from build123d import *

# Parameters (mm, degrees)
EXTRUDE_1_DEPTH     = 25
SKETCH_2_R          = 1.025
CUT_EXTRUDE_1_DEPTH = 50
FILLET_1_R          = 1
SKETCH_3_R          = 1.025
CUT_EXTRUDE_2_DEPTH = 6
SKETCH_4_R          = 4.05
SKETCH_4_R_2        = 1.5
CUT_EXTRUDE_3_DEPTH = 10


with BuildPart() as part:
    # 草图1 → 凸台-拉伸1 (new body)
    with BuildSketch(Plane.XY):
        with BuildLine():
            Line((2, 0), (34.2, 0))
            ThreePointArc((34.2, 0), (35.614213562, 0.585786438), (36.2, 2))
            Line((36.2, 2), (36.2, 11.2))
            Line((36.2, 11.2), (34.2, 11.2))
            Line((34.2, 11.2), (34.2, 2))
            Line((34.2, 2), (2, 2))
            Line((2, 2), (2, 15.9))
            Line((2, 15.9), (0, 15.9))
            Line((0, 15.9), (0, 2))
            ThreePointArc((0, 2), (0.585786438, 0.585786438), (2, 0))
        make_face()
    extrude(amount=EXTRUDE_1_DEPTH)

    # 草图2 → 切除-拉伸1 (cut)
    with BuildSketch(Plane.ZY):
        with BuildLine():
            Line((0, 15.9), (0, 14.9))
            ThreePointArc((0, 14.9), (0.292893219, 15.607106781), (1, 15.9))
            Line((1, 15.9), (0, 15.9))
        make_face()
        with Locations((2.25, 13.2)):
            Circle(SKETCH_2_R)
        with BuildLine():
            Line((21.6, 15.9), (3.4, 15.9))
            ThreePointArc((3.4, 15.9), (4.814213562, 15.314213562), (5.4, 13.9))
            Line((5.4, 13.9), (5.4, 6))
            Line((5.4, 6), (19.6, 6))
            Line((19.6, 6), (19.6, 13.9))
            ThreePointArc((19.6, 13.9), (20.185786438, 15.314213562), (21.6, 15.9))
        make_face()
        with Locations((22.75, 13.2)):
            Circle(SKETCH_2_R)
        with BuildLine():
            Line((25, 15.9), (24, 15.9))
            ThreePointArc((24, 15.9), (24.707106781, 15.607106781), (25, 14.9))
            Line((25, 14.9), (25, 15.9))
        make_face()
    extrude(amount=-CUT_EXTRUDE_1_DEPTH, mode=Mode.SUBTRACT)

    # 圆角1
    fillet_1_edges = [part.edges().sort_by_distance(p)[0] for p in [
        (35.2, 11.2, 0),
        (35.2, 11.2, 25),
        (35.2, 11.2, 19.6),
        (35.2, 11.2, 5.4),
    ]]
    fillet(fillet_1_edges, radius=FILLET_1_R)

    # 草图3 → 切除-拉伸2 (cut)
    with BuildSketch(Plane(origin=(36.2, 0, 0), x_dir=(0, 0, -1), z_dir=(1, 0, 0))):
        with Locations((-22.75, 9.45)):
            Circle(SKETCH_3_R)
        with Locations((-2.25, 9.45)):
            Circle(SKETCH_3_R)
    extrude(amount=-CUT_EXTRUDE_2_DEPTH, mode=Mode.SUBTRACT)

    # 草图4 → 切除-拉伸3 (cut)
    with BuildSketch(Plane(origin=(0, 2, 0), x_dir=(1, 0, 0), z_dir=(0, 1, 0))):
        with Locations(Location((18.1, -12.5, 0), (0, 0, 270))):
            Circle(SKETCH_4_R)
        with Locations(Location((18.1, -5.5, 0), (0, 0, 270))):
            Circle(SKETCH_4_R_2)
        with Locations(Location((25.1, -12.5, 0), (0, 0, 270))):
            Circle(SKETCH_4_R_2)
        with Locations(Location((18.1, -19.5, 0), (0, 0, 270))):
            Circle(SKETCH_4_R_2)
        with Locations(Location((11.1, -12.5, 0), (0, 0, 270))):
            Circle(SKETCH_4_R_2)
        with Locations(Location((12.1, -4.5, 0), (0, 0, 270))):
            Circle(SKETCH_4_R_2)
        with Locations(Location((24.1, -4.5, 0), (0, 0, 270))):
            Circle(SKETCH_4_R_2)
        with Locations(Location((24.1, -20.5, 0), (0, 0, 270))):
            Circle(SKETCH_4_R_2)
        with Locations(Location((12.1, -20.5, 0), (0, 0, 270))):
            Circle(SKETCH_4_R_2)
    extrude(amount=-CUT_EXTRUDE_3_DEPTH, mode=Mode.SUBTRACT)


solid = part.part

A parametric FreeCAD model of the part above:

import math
import FreeCAD as App
import Part
import Sketcher
from FreeCAD import Vector
Q = App.Units.Quantity


def edges_at(feature, points):
    """Names of the edges that pass closest to the given points."""
    edges = feature.Shape.Edges
    near = lambda p: min(range(len(edges)), key=lambda i: edges[i].distToShape(Part.Vertex(*p))[0])
    return sorted({f"Edge{near(p) + 1}" for p in points})

doc = App.newDocument("Part")
body = doc.addObject("PartDesign::Body", "Body")

sketch1 = doc.addObject("Sketcher::SketchObject", "Sketch")
body.addObject(sketch1)
sketch1.AttachmentSupport = (doc.XY_Plane, [""])
sketch1.MapMode = "FlatFace"
sketch1.addGeometry([
    Part.LineSegment(Vector(2, 0, 0), Vector(34.2, 0, 0)),
    Part.ArcOfCircle(Part.Circle(Vector(34.2, 2, 0), Vector(0, 0, 1), 2), math.radians(-90), math.radians(0)),
    Part.LineSegment(Vector(36.2, 2, 0), Vector(36.2, 11.2, 0)),
    Part.LineSegment(Vector(36.2, 11.2, 0), Vector(34.2, 11.2, 0)),
    Part.LineSegment(Vector(34.2, 11.2, 0), Vector(34.2, 2, 0)),
    Part.LineSegment(Vector(34.2, 2, 0), Vector(2, 2, 0)),
    Part.LineSegment(Vector(2, 2, 0), Vector(2, 15.9, 0)),
    Part.LineSegment(Vector(2, 15.9, 0), Vector(0, 15.9, 0)),
    Part.LineSegment(Vector(0, 15.9, 0), Vector(0, 2, 0)),
    Part.ArcOfCircle(Part.Circle(Vector(2, 2, 0), Vector(0, 0, 1), 2), math.radians(-180), math.radians(-90)),
], False)
sketch1.addConstraint([
    Sketcher.Constraint("Tangent", 0, 2, 1, 1),
    Sketcher.Constraint("Tangent", 1, 2, 2, 1),
    Sketcher.Constraint("Coincident", 2, 2, 3, 1),
    Sketcher.Constraint("Coincident", 3, 2, 4, 1),
    Sketcher.Constraint("Coincident", 4, 2, 5, 1),
    Sketcher.Constraint("Coincident", 5, 2, 6, 1),
    Sketcher.Constraint("Coincident", 6, 2, 7, 1),
    Sketcher.Constraint("Coincident", 7, 2, 8, 1),
    Sketcher.Constraint("Tangent", 8, 2, 9, 1),
    Sketcher.Constraint("Tangent", 9, 2, 0, 1),
    Sketcher.Constraint("Horizontal", 0),
    Sketcher.Constraint("Vertical", 2),
    Sketcher.Constraint("Horizontal", 3),
    Sketcher.Constraint("Vertical", 4),
    Sketcher.Constraint("Horizontal", 5),
    Sketcher.Constraint("Vertical", 6),
    Sketcher.Constraint("Horizontal", 7),
    Sketcher.Constraint("Vertical", 8),
    Sketcher.Constraint("Coincident", 4, 2, 1, 3),
    Sketcher.Constraint("Coincident", 5, 2, 9, 3),
    Sketcher.Constraint("PointOnObject", 0, 2, -1),
    Sketcher.Constraint("PointOnObject", 7, 2, -2),
    Sketcher.Constraint("Radius", 1, Q("2 mm")),
    Sketcher.Constraint("DistanceX", 0, 1, 0, 2, Q("32.2 mm")),
    Sketcher.Constraint("DistanceY", 2, 1, 2, 2, Q("9.2 mm")),
    Sketcher.Constraint("DistanceY", 6, 1, 6, 2, Q("13.9 mm")),
])
pad1 = doc.addObject("PartDesign::Pad", "Pad")
body.addObject(pad1)
pad1.Profile = sketch1
pad1.Length = 25

sketch2 = doc.addObject("Sketcher::SketchObject", "Sketch001")
body.addObject(sketch2)
sketch2.AttachmentSupport = (doc.YZ_Plane, [""])
sketch2.MapMode = "FlatFace"
sketch2.addGeometry([
    Part.LineSegment(Vector(15.9, 0, 0), Vector(14.9, 0, 0)),
    Part.ArcOfCircle(Part.Circle(Vector(14.9, 1, 0), Vector(0, 0, 1), 1), math.radians(-90), math.radians(0)),
    Part.LineSegment(Vector(15.9, 1, 0), Vector(15.9, 0, 0)),
    Part.Circle(Vector(13.2, 2.2, 0), Vector(0, 0, 1), 1),
    Part.LineSegment(Vector(15.9, 21.6, 0), Vector(15.9, 3.4, 0)),
    Part.ArcOfCircle(Part.Circle(Vector(13.9, 3.4, 0), Vector(0, 0, 1), 2), math.radians(0), math.radians(90)),
    Part.LineSegment(Vector(13.9, 5.4, 0), Vector(6, 5.4, 0)),
    Part.LineSegment(Vector(6, 5.4, 0), Vector(6, 19.6, 0)),
    Part.LineSegment(Vector(6, 19.6, 0), Vector(13.9, 19.6, 0)),
    Part.ArcOfCircle(Part.Circle(Vector(13.9, 21.6, 0), Vector(0, 0, 1), 2), math.radians(-90), math.radians(0)),
    Part.Circle(Vector(13.2, 22.8, 0), Vector(0, 0, 1), 1),
    Part.LineSegment(Vector(15.9, 25, 0), Vector(15.9, 24, 0)),
    Part.ArcOfCircle(Part.Circle(Vector(14.9, 24, 0), Vector(0, 0, 1), 1), math.radians(0), math.radians(90)),
    Part.LineSegment(Vector(14.9, 25, 0), Vector(15.9, 25, 0)),
], False)
sketch2.addConstraint([
    Sketcher.Constraint("Tangent", 0, 2, 1, 1),
    Sketcher.Constraint("Tangent", 1, 2, 2, 1),
    Sketcher.Constraint("Coincident", 2, 2, 0, 1),
    Sketcher.Constraint("Tangent", 4, 2, 5, 1),
    Sketcher.Constraint("Tangent", 5, 2, 6, 1),
    Sketcher.Constraint("Coincident", 6, 2, 7, 1),
    Sketcher.Constraint("Coincident", 7, 2, 8, 1),
    Sketcher.Constraint("Tangent", 8, 2, 9, 1),
    Sketcher.Constraint("Tangent", 9, 2, 4, 1),
    Sketcher.Constraint("Tangent", 11, 2, 12, 1),
    Sketcher.Constraint("Tangent", 12, 2, 13, 1),
    Sketcher.Constraint("Coincident", 13, 2, 11, 1),
    Sketcher.Constraint("Horizontal", 0),
    Sketcher.Constraint("Vertical", 2),
    Sketcher.Constraint("Vertical", 4),
    Sketcher.Constraint("Horizontal", 6),
    Sketcher.Constraint("Vertical", 7),
    Sketcher.Constraint("Horizontal", 8),
    Sketcher.Constraint("Vertical", 11),
    Sketcher.Constraint("Horizontal", 13),
    Sketcher.Constraint("Equal", 5, 9),
    Sketcher.Constraint("Equal", 3, 10),
    Sketcher.Constraint("Equal", 1, 12),
    Sketcher.Constraint("PointOnObject", 0, 2, -1),
    Sketcher.Constraint("Vertical", 3, 3, 10, 3),
    Sketcher.Constraint("Vertical", 1, 3, 12, 3),
    Sketcher.Constraint("Vertical", 2, 2, 4, 2),
    Sketcher.Constraint("Radius", 1, Q("1 mm")),
    Sketcher.Constraint("Radius", 5, Q("2 mm")),
    Sketcher.Constraint("Diameter", 3, Q("2.05 mm")),
    Sketcher.Constraint("DistanceX", 6, 2, 6, 1, Q("7.9 mm")),
    Sketcher.Constraint("DistanceY", 4, 2, 4, 1, Q("18.2 mm")),
    Sketcher.Constraint("DistanceY", -1, 1, 12, 3, Q("24 mm")),
    Sketcher.Constraint("DistanceX", -1, 1, 6, 2, Q("6 mm")),
    Sketcher.Constraint("DistanceX", -1, 1, 3, 3, Q("13.2 mm")),
    Sketcher.Constraint("DistanceY", -1, 1, 5, 3, Q("3.4 mm")),
    Sketcher.Constraint("DistanceY", 3, 3, 10, 3, Q("20.5 mm")),
    Sketcher.Constraint("DistanceY", -1, 1, 3, 3, Q("2.25 mm")),
])
pocket1 = doc.addObject("PartDesign::Pocket", "Pocket")
body.addObject(pocket1)
pocket1.Profile = sketch2
pocket1.Length = 50
pocket1.Reversed = True
doc.recompute()

fillet = doc.addObject("PartDesign::Fillet", "Fillet")
body.addObject(fillet)
fillet.Base = (pocket1, edges_at(pocket1, [
    (35.2, 11.2, 0),
    (35.2, 11.2, 25),
    (35.2, 11.2, 19.6),
    (35.2, 11.2, 5.4),
]))
fillet.Radius = 1

sketch3 = doc.addObject("Sketcher::SketchObject", "Sketch002")
body.addObject(sketch3)
sketch3.AttachmentSupport = (doc.YZ_Plane, [""])
sketch3.MapMode = "FlatFace"
sketch3.AttachmentOffset = App.Placement(Vector(0, 0, 36.2), App.Rotation())
sketch3.addGeometry([
    Part.Circle(Vector(9.4, 22.8, 0), Vector(0, 0, 1), 1),
    Part.Circle(Vector(9.4, 2.2, 0), Vector(0, 0, 1), 1),
], False)
sketch3.addConstraint([
    Sketcher.Constraint("Equal", 0, 1),
    Sketcher.Constraint("Vertical", 0, 3, 1, 3),
    Sketcher.Constraint("Diameter", 0, Q("2.05 mm")),
    Sketcher.Constraint("DistanceY", 1, 3, 0, 3, Q("20.5 mm")),
    Sketcher.Constraint("DistanceX", -1, 1, 0, 3, Q("9.45 mm")),
    Sketcher.Constraint("DistanceY", -1, 1, 0, 3, Q("22.75 mm")),
])
pocket2 = doc.addObject("PartDesign::Pocket", "Pocket001")
body.addObject(pocket2)
pocket2.Profile = sketch3
pocket2.Length = 6

sketch4 = doc.addObject("Sketcher::SketchObject", "Sketch003")
body.addObject(sketch4)
sketch4.AttachmentSupport = (doc.XZ_Plane, [""])
sketch4.MapMode = "FlatFace"
sketch4.AttachmentOffset = App.Placement(Vector(0, 0, -2), App.Rotation())
sketch4.addGeometry([
    Part.Circle(Vector(18.1, 12.5, 0), Vector(0, 0, 1), 4),
    Part.Circle(Vector(18.1, 5.5, 0), Vector(0, 0, 1), 1.5),
    Part.Circle(Vector(25.1, 12.5, 0), Vector(0, 0, 1), 1.5),
    Part.Circle(Vector(18.1, 19.5, 0), Vector(0, 0, 1), 1.5),
    Part.Circle(Vector(11.1, 12.5, 0), Vector(0, 0, 1), 1.5),
    Part.Circle(Vector(12.1, 4.5, 0), Vector(0, 0, 1), 1.5),
    Part.Circle(Vector(24.1, 4.5, 0), Vector(0, 0, 1), 1.5),
    Part.Circle(Vector(24.1, 20.5, 0), Vector(0, 0, 1), 1.5),
    Part.Circle(Vector(12.1, 20.5, 0), Vector(0, 0, 1), 1.5),
], False)
sketch4.addConstraint([
    Sketcher.Constraint("Equal", 1, 2),
    Sketcher.Constraint("Equal", 2, 3),
    Sketcher.Constraint("Equal", 3, 4),
    Sketcher.Constraint("Equal", 4, 5),
    Sketcher.Constraint("Equal", 5, 6),
    Sketcher.Constraint("Equal", 6, 7),
    Sketcher.Constraint("Equal", 7, 8),
    Sketcher.Constraint("Horizontal", 0, 3, 2, 3),
    Sketcher.Constraint("Horizontal", 2, 3, 4, 3),
    Sketcher.Constraint("Horizontal", 5, 3, 6, 3),
    Sketcher.Constraint("Horizontal", 7, 3, 8, 3),
    Sketcher.Constraint("Vertical", 0, 3, 1, 3),
    Sketcher.Constraint("Vertical", 1, 3, 3, 3),
    Sketcher.Constraint("Vertical", 6, 3, 7, 3),
    Sketcher.Constraint("Vertical", 5, 3, 8, 3),
    Sketcher.Constraint("Diameter", 1, Q("3 mm")),
    Sketcher.Constraint("Diameter", 0, Q("8.1 mm")),
    Sketcher.Constraint("DistanceY", 1, 3, 0, 3, Q("7 mm")),
    Sketcher.Constraint("DistanceX", 0, 3, 2, 3, Q("7 mm")),
    Sketcher.Constraint("DistanceY", 0, 3, 3, 3, Q("7 mm")),
    Sketcher.Constraint("DistanceX", 4, 3, 0, 3, Q("7 mm")),
    Sketcher.Constraint("DistanceX", 5, 3, 1, 3, Q("6 mm")),
    Sketcher.Constraint("DistanceY", 5, 3, 1, 3, Q("1 mm")),
    Sketcher.Constraint("DistanceX", 1, 3, 6, 3, Q("6 mm")),
    Sketcher.Constraint("DistanceY", 3, 3, 7, 3, Q("1 mm")),
    Sketcher.Constraint("DistanceX", -1, 1, 0, 3, Q("18.1 mm")),
    Sketcher.Constraint("DistanceY", -1, 1, 0, 3, Q("12.5 mm")),
])
pocket3 = doc.addObject("PartDesign::Pocket", "Pocket002")
body.addObject(pocket3)
pocket3.Profile = sketch4
pocket3.Length = 10
pocket3.Reversed = True

doc.recompute()
